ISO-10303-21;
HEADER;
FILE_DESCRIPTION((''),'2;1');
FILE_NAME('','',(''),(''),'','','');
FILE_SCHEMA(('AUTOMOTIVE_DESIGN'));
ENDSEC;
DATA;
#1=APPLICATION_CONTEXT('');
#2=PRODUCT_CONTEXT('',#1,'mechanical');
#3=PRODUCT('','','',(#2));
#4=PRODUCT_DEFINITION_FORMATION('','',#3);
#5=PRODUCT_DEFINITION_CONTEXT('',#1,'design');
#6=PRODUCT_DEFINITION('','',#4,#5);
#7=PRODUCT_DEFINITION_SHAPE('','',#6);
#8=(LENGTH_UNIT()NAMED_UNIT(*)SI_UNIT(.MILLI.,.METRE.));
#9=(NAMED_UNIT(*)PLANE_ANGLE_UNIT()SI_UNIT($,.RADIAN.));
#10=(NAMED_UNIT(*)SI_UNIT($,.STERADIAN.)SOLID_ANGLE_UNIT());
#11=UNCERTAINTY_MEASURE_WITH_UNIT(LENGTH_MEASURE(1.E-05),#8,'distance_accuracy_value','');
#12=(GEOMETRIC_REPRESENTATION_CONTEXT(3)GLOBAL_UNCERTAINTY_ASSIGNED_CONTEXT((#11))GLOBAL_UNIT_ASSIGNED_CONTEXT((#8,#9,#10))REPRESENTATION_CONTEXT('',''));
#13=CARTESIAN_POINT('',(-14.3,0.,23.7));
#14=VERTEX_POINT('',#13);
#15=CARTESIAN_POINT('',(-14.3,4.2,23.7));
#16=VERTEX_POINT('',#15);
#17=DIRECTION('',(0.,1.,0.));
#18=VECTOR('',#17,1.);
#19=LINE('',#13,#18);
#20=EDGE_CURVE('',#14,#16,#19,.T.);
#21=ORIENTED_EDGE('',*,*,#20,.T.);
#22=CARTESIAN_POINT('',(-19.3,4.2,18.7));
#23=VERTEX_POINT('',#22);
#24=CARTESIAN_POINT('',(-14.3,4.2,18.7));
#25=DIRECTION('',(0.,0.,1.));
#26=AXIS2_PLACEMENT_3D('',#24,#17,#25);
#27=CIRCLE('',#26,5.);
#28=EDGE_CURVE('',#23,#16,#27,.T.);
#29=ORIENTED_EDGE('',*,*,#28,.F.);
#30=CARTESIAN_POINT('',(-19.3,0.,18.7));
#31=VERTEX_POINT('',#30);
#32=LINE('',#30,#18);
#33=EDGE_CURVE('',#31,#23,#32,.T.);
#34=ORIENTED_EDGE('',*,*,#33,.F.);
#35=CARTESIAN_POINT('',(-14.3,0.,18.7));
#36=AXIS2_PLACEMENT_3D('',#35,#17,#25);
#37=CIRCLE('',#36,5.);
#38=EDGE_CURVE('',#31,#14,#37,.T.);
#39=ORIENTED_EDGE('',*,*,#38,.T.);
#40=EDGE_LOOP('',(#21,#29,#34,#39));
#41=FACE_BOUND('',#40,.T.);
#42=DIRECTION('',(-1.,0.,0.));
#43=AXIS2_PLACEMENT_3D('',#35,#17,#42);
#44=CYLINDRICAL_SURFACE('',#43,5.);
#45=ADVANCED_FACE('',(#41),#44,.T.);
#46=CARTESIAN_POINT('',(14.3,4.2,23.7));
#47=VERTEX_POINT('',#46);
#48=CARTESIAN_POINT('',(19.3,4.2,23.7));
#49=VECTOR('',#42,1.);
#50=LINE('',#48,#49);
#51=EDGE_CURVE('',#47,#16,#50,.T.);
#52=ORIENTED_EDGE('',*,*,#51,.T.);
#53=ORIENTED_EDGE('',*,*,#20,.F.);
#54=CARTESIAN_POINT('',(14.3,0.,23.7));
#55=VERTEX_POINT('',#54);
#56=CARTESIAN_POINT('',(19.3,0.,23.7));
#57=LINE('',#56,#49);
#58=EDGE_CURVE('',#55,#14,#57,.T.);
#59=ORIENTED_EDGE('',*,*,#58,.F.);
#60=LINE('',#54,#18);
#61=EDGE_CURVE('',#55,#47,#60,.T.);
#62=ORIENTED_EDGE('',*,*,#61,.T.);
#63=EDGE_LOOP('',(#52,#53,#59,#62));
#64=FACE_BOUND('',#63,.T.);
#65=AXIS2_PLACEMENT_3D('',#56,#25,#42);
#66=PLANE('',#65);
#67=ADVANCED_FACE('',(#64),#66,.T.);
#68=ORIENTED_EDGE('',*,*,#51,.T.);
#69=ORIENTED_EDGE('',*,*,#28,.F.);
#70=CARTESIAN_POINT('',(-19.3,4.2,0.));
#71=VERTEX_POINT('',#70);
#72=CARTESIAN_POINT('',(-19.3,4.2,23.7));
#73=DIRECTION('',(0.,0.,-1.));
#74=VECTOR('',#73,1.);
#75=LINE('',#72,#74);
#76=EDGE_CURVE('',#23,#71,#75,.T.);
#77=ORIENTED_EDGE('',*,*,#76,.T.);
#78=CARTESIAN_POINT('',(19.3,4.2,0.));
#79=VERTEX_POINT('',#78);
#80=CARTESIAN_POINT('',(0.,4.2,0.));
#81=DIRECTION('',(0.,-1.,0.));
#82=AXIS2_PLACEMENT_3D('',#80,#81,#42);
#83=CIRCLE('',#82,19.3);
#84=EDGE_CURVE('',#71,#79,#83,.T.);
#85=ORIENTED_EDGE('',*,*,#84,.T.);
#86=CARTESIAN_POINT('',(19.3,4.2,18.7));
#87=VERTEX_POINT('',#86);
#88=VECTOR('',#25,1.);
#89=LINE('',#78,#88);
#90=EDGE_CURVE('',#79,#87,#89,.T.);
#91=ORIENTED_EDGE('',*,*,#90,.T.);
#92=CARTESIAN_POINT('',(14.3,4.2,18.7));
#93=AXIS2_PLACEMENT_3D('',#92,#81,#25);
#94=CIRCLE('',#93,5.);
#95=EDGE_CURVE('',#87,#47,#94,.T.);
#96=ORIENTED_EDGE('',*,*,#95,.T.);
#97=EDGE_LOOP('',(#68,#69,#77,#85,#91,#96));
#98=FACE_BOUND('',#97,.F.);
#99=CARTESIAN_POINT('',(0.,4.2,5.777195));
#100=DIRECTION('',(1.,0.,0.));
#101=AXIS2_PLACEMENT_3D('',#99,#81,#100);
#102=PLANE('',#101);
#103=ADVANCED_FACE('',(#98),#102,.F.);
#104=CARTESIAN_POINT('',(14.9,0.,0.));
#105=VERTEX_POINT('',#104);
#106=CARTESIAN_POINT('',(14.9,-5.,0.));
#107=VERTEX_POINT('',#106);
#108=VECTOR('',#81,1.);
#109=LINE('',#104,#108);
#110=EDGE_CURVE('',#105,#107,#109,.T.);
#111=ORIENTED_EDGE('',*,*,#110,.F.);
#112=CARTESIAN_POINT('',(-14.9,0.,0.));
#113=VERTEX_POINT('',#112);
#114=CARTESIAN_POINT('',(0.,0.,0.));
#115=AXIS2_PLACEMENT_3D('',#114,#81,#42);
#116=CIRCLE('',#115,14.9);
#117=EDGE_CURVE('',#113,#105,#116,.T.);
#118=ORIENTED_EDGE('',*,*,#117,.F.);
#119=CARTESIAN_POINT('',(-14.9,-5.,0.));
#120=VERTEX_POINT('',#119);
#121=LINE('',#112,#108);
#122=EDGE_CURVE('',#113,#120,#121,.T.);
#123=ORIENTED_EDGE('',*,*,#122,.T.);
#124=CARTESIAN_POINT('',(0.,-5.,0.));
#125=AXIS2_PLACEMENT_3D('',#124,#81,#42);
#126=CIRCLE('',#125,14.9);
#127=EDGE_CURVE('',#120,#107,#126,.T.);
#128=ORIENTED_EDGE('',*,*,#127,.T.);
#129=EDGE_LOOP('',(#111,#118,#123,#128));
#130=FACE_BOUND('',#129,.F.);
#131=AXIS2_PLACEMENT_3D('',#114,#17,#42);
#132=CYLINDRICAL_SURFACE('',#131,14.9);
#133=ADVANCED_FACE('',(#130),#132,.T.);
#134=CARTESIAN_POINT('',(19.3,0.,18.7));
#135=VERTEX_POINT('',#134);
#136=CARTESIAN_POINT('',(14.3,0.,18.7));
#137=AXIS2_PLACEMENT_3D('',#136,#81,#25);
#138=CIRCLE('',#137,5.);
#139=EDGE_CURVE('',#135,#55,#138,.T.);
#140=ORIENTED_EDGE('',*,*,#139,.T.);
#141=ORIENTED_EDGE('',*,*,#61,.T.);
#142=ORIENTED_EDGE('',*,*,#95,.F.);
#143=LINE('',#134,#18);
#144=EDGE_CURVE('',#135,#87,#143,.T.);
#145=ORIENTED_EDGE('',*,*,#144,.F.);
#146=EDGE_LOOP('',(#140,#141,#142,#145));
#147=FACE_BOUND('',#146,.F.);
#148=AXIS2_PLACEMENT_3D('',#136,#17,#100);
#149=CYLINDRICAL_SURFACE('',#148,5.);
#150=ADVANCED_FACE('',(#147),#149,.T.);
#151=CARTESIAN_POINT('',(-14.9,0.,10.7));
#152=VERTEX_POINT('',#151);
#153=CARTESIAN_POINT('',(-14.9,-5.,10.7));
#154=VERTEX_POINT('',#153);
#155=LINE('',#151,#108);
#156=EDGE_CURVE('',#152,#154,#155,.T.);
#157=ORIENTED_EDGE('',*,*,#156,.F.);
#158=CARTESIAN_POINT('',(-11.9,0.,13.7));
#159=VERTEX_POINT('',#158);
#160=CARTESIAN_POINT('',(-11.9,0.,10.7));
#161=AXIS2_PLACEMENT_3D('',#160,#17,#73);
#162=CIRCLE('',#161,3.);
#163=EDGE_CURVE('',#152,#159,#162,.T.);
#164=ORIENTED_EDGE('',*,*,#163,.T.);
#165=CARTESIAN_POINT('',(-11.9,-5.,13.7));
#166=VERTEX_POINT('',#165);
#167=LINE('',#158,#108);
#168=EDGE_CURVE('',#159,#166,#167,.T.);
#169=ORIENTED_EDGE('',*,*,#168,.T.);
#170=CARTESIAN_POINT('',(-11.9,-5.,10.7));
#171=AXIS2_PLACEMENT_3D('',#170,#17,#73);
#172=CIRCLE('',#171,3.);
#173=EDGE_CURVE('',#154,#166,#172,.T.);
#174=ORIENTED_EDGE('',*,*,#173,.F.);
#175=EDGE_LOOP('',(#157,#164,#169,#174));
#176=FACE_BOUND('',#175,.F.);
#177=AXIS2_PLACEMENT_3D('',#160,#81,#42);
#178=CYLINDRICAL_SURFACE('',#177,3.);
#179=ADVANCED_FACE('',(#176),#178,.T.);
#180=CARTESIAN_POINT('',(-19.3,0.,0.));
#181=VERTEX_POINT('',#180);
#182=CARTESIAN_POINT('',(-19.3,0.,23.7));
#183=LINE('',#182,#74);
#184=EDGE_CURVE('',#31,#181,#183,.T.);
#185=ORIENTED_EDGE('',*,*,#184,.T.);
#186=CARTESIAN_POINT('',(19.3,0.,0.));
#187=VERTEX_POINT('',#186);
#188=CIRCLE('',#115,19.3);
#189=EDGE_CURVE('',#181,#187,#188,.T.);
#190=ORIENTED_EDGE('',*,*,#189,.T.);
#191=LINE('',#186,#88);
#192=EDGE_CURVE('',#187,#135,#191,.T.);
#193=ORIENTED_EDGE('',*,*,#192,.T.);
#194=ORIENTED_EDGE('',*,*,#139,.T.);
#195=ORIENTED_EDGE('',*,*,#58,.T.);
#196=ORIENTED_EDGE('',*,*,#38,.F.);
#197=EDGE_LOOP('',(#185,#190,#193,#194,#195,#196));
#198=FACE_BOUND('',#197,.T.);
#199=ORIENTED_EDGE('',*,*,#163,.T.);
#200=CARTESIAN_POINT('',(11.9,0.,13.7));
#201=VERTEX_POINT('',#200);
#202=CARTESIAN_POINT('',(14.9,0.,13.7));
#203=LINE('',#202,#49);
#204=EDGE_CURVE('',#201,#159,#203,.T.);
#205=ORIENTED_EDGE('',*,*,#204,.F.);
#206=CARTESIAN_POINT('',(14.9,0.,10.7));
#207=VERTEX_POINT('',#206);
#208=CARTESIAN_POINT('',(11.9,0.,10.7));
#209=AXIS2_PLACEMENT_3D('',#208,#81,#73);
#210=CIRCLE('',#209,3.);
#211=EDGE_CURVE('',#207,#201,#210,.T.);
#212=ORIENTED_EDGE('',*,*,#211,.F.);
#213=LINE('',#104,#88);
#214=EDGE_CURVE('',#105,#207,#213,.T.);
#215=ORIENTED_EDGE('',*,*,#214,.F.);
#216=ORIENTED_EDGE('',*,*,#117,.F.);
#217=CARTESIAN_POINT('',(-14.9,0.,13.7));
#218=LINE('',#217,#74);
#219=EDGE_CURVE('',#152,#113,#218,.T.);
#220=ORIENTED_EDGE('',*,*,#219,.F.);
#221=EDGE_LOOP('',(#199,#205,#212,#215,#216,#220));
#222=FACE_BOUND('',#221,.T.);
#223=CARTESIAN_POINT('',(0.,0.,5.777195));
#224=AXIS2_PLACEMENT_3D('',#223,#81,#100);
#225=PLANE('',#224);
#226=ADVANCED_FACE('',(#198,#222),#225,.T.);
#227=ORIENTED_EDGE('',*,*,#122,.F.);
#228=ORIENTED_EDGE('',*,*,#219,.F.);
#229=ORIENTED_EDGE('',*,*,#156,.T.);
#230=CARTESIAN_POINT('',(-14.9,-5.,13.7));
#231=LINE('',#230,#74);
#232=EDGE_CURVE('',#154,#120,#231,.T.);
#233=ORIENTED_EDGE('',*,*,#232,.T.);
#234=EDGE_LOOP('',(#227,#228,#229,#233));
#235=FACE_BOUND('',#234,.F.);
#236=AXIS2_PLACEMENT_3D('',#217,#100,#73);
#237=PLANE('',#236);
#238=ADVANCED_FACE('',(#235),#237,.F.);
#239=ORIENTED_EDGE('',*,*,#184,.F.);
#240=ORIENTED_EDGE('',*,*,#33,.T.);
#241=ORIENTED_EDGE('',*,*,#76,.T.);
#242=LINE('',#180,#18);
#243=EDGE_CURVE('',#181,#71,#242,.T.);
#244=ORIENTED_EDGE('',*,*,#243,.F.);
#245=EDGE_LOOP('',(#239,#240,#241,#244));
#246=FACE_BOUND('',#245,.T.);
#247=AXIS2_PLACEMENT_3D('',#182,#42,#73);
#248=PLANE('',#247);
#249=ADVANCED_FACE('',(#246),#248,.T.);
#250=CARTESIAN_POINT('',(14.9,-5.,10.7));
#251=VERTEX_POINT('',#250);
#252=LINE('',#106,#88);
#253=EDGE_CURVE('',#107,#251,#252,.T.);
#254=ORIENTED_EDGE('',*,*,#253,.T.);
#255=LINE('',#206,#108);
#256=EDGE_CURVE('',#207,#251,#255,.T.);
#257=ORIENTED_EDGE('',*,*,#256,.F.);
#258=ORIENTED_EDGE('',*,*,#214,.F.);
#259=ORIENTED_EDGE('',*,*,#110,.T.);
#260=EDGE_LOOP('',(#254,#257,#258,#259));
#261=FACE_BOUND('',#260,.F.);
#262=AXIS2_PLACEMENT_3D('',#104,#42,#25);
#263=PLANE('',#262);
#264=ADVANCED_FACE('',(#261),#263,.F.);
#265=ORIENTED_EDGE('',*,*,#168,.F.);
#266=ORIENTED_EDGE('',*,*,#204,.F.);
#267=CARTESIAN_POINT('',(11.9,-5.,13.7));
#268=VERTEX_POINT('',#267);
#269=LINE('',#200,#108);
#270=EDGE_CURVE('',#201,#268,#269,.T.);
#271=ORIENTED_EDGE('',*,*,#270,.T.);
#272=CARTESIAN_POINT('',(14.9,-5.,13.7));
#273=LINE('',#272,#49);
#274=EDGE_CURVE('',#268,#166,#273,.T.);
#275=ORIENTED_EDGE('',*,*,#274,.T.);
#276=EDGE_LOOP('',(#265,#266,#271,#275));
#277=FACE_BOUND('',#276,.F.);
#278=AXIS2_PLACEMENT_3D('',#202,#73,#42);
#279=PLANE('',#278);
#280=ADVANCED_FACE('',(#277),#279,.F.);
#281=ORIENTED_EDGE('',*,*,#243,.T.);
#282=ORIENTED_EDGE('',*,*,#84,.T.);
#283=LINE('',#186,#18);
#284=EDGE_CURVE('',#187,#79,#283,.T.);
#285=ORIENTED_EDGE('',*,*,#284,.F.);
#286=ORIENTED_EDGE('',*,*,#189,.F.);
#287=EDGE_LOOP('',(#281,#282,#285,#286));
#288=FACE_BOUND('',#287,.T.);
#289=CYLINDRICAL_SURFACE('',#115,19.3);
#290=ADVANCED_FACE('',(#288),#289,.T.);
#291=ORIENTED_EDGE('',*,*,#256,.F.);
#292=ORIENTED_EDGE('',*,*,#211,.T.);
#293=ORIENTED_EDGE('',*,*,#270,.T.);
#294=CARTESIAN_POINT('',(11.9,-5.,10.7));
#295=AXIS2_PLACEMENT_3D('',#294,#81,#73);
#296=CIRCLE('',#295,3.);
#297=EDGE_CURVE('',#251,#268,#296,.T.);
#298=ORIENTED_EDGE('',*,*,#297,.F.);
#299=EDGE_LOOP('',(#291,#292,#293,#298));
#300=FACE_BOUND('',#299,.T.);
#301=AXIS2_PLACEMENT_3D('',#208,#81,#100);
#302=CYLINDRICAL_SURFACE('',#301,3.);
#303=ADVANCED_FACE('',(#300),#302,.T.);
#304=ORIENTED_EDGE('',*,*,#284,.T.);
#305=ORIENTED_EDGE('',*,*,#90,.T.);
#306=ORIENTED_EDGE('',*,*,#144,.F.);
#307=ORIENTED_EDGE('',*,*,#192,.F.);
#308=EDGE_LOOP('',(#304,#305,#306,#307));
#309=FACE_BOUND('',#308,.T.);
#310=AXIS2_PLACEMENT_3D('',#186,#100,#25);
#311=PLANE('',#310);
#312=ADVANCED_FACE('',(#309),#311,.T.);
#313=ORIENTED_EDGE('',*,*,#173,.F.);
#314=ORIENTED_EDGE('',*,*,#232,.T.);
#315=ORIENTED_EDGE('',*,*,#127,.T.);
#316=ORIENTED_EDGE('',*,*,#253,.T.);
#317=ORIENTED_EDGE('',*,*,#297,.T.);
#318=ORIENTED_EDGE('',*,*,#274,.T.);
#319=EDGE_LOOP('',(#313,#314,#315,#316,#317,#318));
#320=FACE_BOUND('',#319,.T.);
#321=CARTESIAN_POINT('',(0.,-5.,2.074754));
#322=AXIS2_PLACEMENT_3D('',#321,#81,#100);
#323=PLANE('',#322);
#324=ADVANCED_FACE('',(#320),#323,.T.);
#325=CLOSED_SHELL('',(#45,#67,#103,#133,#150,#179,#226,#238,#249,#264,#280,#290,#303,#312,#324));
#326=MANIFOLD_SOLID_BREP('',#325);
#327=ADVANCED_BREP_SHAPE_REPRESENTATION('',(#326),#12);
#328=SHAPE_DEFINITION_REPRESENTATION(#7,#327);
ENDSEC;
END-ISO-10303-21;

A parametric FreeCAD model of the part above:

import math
import FreeCAD as App
import Part
import Sketcher

V = App.Vector
Q = App.Units.Quantity


def edges_at(feature, points):
    """Names of the edges that pass closest to the given points."""
    edges = feature.Shape.Edges
    near = lambda p: min(range(len(edges)), key=lambda i: edges[i].distToShape(Part.Vertex(*p))[0])
    return sorted({f"Edge{near(p) + 1}" for p in points})

doc = App.newDocument("Part")
body = doc.addObject("PartDesign::Body", "Body")

# Sketch on XZ plane
sketch1 = body.newObject("Sketcher::SketchObject", "Sketch")
sketch1.AttachmentSupport = (doc.getObject("XZ_Plane"), [""])
sketch1.MapMode = "FlatFace"
sketch1.addGeometry(Part.ArcOfCircle(Part.Circle(V(0, 0, 0), V(0, 0, 1), 19), math.radians(180), math.radians(360)), False)
sketch1.addGeometry(Part.LineSegment(V(19, 0, 0), V(19, 24, 0)), False)
sketch1.addGeometry(Part.LineSegment(V(19, 24, 0), V(-19, 24, 0)), False)
sketch1.addGeometry(Part.LineSegment(V(-19, 24, 0), V(-19, 0, 0)), False)
sketch1.addConstraint(Sketcher.Constraint("Tangent", 0, 2, 1, 1))
sketch1.addConstraint(Sketcher.Constraint("Coincident", 1, 2, 2, 1))
sketch1.addConstraint(Sketcher.Constraint("Coincident", 2, 2, 3, 1))
sketch1.addConstraint(Sketcher.Constraint("Tangent", 3, 2, 0, 1))
sketch1.addConstraint(Sketcher.Constraint("Vertical", 1))
sketch1.addConstraint(Sketcher.Constraint("Horizontal", 2))
sketch1.addConstraint(Sketcher.Constraint("Vertical", 3))
sketch1.addConstraint(Sketcher.Constraint("Coincident", 0, 3, -1, 1))
sketch1.addConstraint(Sketcher.Constraint("Radius", 0, Q("19.3 mm")))
sketch1.addConstraint(Sketcher.Constraint("DistanceY", 1, 1, 1, 2, Q("23.7 mm")))
pad1 = body.newObject("PartDesign::Pad", "Pad")
pad1.Profile = sketch1
pad1.Length = 4.2
pad1.Reversed = True

# Sketch on XZ plane
sketch2 = body.newObject("Sketcher::SketchObject", "Sketch001")
sketch2.AttachmentSupport = (doc.getObject("XZ_Plane"), [""])
sketch2.MapMode = "FlatFace"
sketch2.addGeometry(Part.LineSegment(V(-15, 14, 0), V(-15, 0, 0)), False)
sketch2.addGeometry(Part.ArcOfCircle(Part.Circle(V(0, 0, 0), V(0, 0, 1), 15), math.radians(180), math.radians(360)), False)
sketch2.addGeometry(Part.LineSegment(V(15, 0, 0), V(15, 14, 0)), False)
sketch2.addGeometry(Part.LineSegment(V(15, 14, 0), V(-15, 14, 0)), False)
sketch2.addConstraint(Sketcher.Constraint("Tangent", 0, 2, 1, 1))
sketch2.addConstraint(Sketcher.Constraint("Tangent", 1, 2, 2, 1))
sketch2.addConstraint(Sketcher.Constraint("Coincident", 2, 2, 3, 1))
sketch2.addConstraint(Sketcher.Constraint("Coincident", 3, 2, 0, 1))
sketch2.addConstraint(Sketcher.Constraint("Vertical", 0))
sketch2.addConstraint(Sketcher.Constraint("Vertical", 2))
sketch2.addConstraint(Sketcher.Constraint("Horizontal", 3))
sketch2.addConstraint(Sketcher.Constraint("Coincident", 1, 3, -1, 1))
sketch2.addConstraint(Sketcher.Constraint("Radius", 1, Q("14.9 mm")))
sketch2.addConstraint(Sketcher.Constraint("DistanceY", 0, 2, 0, 1, Q("13.7 mm")))
pad2 = body.newObject("PartDesign::Pad", "Pad001")
pad2.Profile = sketch2
pad2.Length = 5
doc.recompute()

fillet = body.newObject("PartDesign::Fillet", "Fillet")
fillet.Base = (pad2, edges_at(pad2, [(-19.3, 2.1, 23.7), (19.3, 2.1, 23.7)]))
fillet.Radius = 5
doc.recompute()

fillet2 = body.newObject("PartDesign::Fillet", "Fillet001")
fillet2.Base = (fillet, edges_at(fillet, [(-14.9, -2.5, 13.7), (14.9, -2.5, 13.7)]))
fillet2.Radius = 3

doc.recompute()
